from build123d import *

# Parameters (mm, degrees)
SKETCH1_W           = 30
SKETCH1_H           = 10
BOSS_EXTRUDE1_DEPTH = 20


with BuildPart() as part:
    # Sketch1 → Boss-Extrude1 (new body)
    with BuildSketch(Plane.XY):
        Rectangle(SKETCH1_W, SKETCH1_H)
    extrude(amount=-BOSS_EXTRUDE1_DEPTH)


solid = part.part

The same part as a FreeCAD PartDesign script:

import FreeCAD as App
import Part
import Sketcher
from FreeCAD import Vector
Q = App.Units.Quantity


def add_polygon(sketch, points):
    """Adds a closed chain of lines whose ends are joined by coincident constraints."""
    first, n = sketch.GeometryCount, len(points)
    for a, b in zip(points, points[1:] + points[:1]):
        sketch.addGeometry(Part.LineSegment(App.Vector(*a, 0), App.Vector(*b, 0)), False)
    for i in range(n):
        sketch.addConstraint(Sketcher.Constraint("Coincident", first + i, 2, first + (i + 1) % n, 1))

doc = App.newDocument("Part")
body = doc.addObject("PartDesign::Body", "Body")

# Sketch on XY plane
sketch1 = doc.addObject("Sketcher::SketchObject", "Sketch")
body.addObject(sketch1)
sketch1.AttachmentSupport = (doc.XY_Plane, [""])
sketch1.MapMode = "FlatFace"
add_polygon(sketch1, [(-15, 5), (-15, -5), (15, -5), (15, 5)])  # lines 0-3
sketch1.addConstraint([
    Sketcher.Constraint("Vertical", 0),
    Sketcher.Constraint("Horizontal", 1),
    Sketcher.Constraint("Vertical", 2),
    Sketcher.Constraint("Horizontal", 3),
    Sketcher.Constraint("Symmetric", 0, 2, 2, 2, -1, 1),
    Sketcher.Constraint("DistanceX", 1, 1, 1, 2, Q("30 mm")),
    Sketcher.Constraint("DistanceY", 0, 2, 0, 1, Q("10 mm")),
])
pad1 = doc.addObject("PartDesign::Pad", "Pad")
body.addObject(pad1)
pad1.Profile = sketch1
pad1.Length = 20
pad1.Reversed = True

doc.recompute()
